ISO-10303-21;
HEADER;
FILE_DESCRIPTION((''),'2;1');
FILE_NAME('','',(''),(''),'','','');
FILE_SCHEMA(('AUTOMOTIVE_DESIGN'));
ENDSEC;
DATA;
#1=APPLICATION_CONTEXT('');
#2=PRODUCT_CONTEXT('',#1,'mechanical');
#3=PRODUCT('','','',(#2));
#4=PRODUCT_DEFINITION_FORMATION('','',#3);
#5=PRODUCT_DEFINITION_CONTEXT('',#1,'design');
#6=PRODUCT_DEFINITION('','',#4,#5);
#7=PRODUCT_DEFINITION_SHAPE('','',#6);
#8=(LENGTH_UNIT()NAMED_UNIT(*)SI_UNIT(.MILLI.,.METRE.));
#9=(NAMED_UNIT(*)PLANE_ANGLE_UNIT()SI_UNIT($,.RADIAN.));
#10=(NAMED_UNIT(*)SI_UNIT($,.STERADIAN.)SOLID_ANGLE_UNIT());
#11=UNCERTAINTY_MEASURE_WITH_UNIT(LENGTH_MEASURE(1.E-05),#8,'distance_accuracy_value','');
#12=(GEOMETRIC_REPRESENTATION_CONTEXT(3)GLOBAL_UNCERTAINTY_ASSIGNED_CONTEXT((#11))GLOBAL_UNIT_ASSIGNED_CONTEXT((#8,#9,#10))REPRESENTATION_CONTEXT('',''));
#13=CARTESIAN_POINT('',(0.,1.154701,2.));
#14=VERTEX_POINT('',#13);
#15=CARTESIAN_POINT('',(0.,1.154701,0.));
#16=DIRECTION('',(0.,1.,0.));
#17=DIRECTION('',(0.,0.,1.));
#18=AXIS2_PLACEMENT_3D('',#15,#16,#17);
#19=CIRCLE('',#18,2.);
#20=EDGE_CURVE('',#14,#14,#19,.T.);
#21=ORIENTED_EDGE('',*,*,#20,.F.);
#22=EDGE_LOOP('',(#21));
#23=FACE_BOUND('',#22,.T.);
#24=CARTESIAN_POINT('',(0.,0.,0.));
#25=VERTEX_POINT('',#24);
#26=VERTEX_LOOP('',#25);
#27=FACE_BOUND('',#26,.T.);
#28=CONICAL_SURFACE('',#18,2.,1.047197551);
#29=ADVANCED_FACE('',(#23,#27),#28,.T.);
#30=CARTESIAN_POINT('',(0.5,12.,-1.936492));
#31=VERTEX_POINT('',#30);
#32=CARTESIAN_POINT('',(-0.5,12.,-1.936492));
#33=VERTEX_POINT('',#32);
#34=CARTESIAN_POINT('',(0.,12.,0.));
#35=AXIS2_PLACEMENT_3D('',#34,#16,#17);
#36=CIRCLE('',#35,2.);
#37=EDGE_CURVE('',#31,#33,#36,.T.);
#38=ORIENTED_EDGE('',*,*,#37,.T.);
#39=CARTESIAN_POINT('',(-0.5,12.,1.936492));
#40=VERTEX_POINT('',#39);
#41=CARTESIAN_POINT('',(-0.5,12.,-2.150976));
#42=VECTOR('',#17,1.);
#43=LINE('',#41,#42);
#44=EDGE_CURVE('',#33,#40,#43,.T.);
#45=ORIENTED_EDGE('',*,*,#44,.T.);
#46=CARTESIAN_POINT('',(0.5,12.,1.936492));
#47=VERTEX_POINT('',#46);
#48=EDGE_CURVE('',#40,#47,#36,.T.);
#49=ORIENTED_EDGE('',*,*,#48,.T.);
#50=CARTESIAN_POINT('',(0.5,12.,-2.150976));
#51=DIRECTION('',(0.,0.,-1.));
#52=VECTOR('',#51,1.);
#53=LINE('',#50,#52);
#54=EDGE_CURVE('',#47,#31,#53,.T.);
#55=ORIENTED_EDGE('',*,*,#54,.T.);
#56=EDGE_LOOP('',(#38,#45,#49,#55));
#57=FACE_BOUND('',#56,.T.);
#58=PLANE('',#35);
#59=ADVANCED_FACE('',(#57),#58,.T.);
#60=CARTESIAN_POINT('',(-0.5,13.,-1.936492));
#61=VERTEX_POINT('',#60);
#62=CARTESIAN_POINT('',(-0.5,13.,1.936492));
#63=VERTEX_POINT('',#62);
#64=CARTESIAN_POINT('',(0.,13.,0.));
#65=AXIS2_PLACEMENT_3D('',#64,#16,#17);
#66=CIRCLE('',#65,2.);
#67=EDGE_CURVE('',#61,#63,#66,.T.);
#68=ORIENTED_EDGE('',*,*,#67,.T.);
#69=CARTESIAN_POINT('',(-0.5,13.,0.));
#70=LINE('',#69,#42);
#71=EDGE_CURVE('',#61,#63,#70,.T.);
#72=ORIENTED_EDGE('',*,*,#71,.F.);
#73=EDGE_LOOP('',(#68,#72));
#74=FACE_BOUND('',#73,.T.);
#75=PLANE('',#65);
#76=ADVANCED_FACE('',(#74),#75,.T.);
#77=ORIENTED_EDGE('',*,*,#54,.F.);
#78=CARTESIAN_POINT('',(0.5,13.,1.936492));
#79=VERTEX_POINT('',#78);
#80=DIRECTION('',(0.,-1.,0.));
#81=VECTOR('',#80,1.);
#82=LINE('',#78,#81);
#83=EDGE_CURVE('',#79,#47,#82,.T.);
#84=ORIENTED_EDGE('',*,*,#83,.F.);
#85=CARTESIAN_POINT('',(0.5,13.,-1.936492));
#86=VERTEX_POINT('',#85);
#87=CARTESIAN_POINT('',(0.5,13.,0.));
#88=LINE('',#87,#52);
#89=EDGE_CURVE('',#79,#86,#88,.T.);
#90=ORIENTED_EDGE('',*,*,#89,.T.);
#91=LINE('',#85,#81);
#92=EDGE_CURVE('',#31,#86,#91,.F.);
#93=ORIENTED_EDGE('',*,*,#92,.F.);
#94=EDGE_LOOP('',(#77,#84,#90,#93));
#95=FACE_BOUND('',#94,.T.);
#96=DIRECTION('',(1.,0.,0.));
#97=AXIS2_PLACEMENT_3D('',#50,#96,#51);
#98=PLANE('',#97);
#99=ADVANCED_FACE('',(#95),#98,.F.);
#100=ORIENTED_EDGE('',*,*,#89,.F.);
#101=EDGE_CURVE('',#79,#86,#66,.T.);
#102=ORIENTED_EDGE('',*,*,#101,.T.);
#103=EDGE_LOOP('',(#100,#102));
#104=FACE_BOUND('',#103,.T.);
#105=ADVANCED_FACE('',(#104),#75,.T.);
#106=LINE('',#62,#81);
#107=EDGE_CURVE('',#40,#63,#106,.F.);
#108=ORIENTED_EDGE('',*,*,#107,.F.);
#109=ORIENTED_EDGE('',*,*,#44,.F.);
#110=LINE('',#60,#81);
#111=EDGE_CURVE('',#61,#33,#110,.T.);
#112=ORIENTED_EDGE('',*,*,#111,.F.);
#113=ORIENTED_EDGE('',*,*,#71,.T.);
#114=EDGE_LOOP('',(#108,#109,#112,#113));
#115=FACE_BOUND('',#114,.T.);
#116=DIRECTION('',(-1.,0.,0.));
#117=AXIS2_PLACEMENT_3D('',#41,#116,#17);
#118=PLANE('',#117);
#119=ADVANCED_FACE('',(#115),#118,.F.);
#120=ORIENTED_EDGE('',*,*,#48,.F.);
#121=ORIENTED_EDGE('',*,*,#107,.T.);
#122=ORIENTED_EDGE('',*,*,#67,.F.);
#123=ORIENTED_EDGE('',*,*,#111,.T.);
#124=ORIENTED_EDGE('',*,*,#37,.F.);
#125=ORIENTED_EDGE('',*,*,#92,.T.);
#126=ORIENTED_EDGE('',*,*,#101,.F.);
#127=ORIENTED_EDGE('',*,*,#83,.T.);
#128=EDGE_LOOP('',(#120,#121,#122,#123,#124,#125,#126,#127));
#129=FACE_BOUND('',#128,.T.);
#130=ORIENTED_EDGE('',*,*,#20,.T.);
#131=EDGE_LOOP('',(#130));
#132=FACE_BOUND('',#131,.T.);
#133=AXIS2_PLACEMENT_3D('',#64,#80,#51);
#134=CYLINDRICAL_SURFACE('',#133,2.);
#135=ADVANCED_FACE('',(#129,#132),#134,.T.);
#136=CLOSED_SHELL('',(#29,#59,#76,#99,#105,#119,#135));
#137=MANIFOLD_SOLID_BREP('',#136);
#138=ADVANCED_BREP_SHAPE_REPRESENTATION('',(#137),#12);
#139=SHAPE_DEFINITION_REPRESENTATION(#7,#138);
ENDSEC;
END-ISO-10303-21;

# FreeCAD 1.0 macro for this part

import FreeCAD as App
import Part
import Sketcher


def edges_at(feature, points):
    """Names of the edges that pass closest to the given points."""
    edges = feature.Shape.Edges
    near = lambda p: min(range(len(edges)), key=lambda i: edges[i].distToShape(Part.Vertex(*p))[0])
    return sorted({f"Edge{near(p) + 1}" for p in points})


def add_polygon(sketch, points):
    """Adds a closed chain of lines whose ends are joined by coincident constraints."""
    first, n = sketch.GeometryCount, len(points)
    for a, b in zip(points, points[1:] + points[:1]):
        sketch.addGeometry(Part.LineSegment(App.Vector(*a, 0), App.Vector(*b, 0)), False)
    for i in range(n):
        sketch.addConstraint(Sketcher.Constraint("Coincident", first + i, 2, first + (i + 1) % n, 1))

doc = App.newDocument("Part")
body = doc.addObject("PartDesign::Body", "Body")

sketch1 = body.newObject("Sketcher::SketchObject", "Sketch")
sketch1.AttachmentSupport = (doc.getObject("XZ_Plane"), [""])
sketch1.MapMode = "FlatFace"
sketch1.addGeometry(Part.Circle(App.Vector(0, 0, 0), App.Vector(0, 0, 1), 2), False)
sketch1.addConstraint([
    Sketcher.Constraint("Coincident", 0, 3, -1, 1),
    Sketcher.Constraint("Diameter", 0, 4.0),
])
pad1 = body.newObject("PartDesign::Pad", "Pad")
pad1.Profile = sketch1
pad1.Length = 13
pad1.Reversed = True
doc.recompute()

chamfer = body.newObject("PartDesign::Chamfer", "Chamfer")
chamfer.Base = (pad1, edges_at(pad1, [(0, 0, 2)]))
chamfer.ChamferType = "Two distances"
chamfer.Size = 2
chamfer.Size2 = 1.154701
chamfer.FlipDirection = True

sketch2 = body.newObject("Sketcher::SketchObject", "Sketch001")
sketch2.AttachmentSupport = (doc.getObject("XZ_Plane"), [""])
sketch2.MapMode = "FlatFace"
sketch2.AttachmentOffset = App.Placement(App.Vector(0, 0, -13), App.Rotation())
add_polygon(sketch2, [(-0.5, -2.150976), (-0.5, 2.313593), (0.5, 2.313593), (0.5, -2.150976)])
sketch2.addConstraint([
    Sketcher.Constraint("Vertical", 0),
    Sketcher.Constraint("Horizontal", 1),
    Sketcher.Constraint("Vertical", 2),
    Sketcher.Constraint("Horizontal", 3),
    Sketcher.Constraint("DistanceX", 1, 1, 1, 2, 1.0),
    Sketcher.Constraint("DistanceX", 0, 2, -1, 1, 0.5),
    Sketcher.Constraint("DistanceY", 0, 1, 0, 2, 4.464569),
    Sketcher.Constraint("DistanceY", -1, 1, 0, 2, 2.313593),
])
pocket1 = body.newObject("PartDesign::Pocket", "Pocket")
pocket1.Profile = sketch2
pocket1.Length = 1
pocket1.Reversed = True

doc.recompute()
